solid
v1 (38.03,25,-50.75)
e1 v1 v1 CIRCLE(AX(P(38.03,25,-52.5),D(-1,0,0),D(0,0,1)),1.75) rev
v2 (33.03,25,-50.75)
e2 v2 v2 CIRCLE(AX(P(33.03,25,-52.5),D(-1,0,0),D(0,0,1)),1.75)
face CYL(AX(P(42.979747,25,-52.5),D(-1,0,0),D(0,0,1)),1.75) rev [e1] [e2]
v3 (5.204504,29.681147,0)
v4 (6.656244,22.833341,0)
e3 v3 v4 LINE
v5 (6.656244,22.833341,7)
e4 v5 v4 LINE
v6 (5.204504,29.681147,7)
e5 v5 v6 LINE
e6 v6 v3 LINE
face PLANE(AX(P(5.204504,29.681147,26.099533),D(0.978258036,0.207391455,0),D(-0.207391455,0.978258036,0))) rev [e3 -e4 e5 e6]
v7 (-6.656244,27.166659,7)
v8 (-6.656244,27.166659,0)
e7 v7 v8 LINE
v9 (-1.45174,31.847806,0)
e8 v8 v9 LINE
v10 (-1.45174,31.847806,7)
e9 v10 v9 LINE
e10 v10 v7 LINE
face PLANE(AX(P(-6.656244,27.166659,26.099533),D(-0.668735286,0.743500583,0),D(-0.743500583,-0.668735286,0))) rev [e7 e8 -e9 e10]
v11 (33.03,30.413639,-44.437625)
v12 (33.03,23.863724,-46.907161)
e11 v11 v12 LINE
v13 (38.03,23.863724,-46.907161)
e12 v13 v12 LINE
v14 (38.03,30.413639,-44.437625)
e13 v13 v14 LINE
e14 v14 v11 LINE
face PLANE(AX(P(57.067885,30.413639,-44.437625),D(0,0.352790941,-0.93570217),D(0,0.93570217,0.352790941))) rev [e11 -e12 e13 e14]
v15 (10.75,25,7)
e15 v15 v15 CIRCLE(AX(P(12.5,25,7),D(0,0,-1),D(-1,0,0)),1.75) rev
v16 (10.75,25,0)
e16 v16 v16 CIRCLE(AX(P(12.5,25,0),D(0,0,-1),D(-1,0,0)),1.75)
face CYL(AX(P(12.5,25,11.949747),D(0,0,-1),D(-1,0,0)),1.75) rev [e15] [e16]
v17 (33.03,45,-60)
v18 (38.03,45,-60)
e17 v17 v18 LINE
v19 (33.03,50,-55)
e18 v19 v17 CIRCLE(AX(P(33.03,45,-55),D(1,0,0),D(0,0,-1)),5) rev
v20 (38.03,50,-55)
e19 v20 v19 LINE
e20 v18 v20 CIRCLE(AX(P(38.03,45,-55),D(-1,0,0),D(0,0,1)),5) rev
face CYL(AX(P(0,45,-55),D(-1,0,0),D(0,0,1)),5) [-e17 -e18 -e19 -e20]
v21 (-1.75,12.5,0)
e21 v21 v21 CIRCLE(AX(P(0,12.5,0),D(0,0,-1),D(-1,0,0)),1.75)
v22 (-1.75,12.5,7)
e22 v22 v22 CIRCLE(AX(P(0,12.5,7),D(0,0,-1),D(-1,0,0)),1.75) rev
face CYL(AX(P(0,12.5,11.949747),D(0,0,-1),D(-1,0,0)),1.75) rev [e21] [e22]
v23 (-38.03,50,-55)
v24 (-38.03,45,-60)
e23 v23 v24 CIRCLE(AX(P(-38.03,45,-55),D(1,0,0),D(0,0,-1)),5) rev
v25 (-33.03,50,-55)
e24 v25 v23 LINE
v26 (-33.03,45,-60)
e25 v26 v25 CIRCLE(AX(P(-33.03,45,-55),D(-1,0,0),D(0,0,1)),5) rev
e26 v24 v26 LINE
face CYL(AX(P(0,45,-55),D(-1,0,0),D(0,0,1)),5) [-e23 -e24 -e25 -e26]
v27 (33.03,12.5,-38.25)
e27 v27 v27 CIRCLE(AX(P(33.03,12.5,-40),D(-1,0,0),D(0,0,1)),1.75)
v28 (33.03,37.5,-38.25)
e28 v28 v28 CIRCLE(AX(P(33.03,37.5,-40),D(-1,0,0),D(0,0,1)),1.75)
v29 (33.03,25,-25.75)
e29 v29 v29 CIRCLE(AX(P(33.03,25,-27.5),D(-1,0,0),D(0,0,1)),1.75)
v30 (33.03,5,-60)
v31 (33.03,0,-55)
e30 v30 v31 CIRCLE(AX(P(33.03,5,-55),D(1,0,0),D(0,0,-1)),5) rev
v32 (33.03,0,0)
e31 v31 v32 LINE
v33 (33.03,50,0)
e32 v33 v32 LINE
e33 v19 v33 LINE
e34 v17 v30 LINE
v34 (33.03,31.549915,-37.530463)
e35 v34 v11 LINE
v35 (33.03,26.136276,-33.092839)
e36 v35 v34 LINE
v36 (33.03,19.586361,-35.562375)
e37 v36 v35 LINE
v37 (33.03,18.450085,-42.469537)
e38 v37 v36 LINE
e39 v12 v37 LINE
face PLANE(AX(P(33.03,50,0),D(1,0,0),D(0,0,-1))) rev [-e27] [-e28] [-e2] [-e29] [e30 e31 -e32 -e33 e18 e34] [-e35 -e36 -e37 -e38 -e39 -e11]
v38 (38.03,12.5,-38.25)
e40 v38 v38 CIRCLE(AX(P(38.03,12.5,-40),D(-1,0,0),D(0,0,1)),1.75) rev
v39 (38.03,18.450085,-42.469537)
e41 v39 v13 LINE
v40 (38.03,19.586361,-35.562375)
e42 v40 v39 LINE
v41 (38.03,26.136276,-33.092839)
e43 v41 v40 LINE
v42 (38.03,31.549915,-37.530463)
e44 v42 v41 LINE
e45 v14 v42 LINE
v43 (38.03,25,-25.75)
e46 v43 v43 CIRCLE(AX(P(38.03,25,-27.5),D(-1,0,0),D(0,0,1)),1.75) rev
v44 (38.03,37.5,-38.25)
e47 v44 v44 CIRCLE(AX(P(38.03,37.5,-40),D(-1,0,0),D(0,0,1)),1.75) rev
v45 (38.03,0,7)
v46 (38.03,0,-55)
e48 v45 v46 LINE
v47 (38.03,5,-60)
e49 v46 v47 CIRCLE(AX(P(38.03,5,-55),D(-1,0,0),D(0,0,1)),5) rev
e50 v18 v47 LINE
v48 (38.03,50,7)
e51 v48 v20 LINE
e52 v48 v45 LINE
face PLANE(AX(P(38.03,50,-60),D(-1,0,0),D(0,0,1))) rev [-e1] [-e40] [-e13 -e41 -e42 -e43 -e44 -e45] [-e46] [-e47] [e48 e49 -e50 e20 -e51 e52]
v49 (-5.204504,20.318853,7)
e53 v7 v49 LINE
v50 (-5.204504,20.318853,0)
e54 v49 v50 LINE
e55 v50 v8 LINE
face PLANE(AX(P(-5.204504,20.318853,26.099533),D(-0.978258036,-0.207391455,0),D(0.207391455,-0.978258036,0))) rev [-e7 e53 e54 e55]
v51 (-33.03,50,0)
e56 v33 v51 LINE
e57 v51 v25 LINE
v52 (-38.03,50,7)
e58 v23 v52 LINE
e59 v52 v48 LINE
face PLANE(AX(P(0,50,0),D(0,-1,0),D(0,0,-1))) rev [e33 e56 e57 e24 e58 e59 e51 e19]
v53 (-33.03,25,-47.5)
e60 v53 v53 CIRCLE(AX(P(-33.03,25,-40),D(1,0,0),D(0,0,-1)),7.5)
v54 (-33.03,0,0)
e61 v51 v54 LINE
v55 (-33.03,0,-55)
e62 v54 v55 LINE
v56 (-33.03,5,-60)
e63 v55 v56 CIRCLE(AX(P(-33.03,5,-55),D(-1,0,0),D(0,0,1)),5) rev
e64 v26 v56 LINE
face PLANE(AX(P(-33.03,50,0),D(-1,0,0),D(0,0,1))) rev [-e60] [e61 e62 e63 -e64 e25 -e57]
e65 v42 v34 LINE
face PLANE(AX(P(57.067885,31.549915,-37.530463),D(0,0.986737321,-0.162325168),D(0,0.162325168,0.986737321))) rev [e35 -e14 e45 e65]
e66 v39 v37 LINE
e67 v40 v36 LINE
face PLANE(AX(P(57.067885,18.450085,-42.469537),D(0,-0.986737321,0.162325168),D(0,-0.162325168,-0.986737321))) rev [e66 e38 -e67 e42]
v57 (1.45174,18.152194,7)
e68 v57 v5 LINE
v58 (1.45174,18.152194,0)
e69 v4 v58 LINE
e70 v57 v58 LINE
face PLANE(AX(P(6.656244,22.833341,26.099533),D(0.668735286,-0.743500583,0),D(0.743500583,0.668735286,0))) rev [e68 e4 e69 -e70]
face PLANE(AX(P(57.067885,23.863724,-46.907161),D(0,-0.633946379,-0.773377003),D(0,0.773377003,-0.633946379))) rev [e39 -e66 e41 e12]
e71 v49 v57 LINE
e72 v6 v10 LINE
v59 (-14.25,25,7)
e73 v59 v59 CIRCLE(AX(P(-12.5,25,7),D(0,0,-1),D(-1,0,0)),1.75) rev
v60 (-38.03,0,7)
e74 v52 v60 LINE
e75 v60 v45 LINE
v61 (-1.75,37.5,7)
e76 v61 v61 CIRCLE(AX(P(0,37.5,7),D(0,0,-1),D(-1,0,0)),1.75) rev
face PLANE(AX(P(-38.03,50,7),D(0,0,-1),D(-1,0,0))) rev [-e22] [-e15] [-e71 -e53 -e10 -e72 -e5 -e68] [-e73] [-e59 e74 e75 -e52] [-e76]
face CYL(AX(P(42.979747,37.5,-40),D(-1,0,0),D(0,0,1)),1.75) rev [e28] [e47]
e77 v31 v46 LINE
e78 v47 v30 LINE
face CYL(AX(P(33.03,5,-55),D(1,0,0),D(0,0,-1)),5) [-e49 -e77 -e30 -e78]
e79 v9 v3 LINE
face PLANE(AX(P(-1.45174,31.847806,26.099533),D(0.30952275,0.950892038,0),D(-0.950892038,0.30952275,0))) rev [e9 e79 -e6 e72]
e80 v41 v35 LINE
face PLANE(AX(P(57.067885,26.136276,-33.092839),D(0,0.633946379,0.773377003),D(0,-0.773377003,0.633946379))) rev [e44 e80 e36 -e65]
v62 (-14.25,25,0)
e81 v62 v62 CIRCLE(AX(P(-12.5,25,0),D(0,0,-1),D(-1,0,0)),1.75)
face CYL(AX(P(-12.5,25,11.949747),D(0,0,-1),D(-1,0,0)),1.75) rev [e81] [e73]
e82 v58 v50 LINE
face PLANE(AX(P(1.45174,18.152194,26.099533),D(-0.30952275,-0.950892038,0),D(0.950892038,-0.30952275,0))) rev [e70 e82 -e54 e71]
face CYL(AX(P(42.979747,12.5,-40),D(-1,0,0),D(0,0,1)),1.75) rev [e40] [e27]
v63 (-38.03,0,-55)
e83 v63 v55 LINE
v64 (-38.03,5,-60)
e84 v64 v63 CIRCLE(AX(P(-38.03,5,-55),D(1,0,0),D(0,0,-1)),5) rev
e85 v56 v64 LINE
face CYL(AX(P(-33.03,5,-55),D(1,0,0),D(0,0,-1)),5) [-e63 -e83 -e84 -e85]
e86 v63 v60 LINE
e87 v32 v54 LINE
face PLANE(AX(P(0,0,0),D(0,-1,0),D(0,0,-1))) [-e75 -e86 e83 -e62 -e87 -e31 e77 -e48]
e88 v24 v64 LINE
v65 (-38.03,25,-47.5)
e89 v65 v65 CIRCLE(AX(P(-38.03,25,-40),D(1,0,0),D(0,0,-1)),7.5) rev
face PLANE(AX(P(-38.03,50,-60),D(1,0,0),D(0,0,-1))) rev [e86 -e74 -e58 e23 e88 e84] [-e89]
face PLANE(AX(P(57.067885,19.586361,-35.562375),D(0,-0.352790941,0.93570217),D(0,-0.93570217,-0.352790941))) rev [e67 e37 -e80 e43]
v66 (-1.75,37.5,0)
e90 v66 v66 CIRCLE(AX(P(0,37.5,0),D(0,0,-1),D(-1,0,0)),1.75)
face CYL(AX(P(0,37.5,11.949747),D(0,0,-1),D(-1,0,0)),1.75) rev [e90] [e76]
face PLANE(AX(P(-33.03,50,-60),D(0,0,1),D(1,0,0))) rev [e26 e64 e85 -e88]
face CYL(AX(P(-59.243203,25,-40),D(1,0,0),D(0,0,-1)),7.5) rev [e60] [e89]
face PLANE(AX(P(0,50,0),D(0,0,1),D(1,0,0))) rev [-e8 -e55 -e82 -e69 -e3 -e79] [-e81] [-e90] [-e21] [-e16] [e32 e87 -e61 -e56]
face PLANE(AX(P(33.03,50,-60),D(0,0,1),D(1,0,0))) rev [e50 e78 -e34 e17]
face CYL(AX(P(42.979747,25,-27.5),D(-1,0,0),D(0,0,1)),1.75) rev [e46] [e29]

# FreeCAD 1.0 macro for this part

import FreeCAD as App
import Part
import Sketcher

V = App.Vector
Q = App.Units.Quantity


def edges_at(feature, points):
    """Names of the edges that pass closest to the given points."""
    edges = feature.Shape.Edges
    near = lambda p: min(range(len(edges)), key=lambda i: edges[i].distToShape(Part.Vertex(*p))[0])
    return sorted({f"Edge{near(p) + 1}" for p in points})


def add_polygon(sketch, points):
    """Adds a closed chain of lines whose ends are joined by coincident constraints."""
    first, n = sketch.GeometryCount, len(points)
    for a, b in zip(points, points[1:] + points[:1]):
        sketch.addGeometry(Part.LineSegment(App.Vector(*a, 0), App.Vector(*b, 0)), False)
    for i in range(n):
        sketch.addConstraint(Sketcher.Constraint("Coincident", first + i, 2, first + (i + 1) % n, 1))

doc = App.newDocument("Part")
body = doc.addObject("PartDesign::Body", "Body")

# Sketch on XZ plane
sketch1 = body.newObject("Sketcher::SketchObject", "Sketch")
sketch1.AttachmentSupport = (doc.getObject("XZ_Plane"), [""])
sketch1.MapMode = "FlatFace"
add_polygon(sketch1, [(33, 0), (-33, 0), (-33, -60), (-38, -60), (-38, 7), (38, 7), (38, -60), (33, -60)])  # lines 0-7
sketch1.addConstraint(Sketcher.Constraint("Horizontal", 0))
sketch1.addConstraint(Sketcher.Constraint("Vertical", 1))
sketch1.addConstraint(Sketcher.Constraint("Horizontal", 2))
sketch1.addConstraint(Sketcher.Constraint("Vertical", 3))
sketch1.addConstraint(Sketcher.Constraint("Horizontal", 4))
sketch1.addConstraint(Sketcher.Constraint("Vertical", 5))
sketch1.addConstraint(Sketcher.Constraint("Horizontal", 6))
sketch1.addConstraint(Sketcher.Constraint("Vertical", 7))
sketch1.addConstraint(Sketcher.Constraint("Symmetric", 0, 2, 7, 2, -1, 1))
sketch1.addConstraint(Sketcher.Constraint("Symmetric", 2, 2, 5, 2, -2))
sketch1.addConstraint(Sketcher.Constraint("DistanceX", 2, 2, 2, 1, Q("5 mm")))
sketch1.addConstraint(Sketcher.Constraint("DistanceY", 1, 2, 1, 1, Q("60 mm")))
sketch1.addConstraint(Sketcher.Constraint("DistanceY", 3, 1, 3, 2, Q("67 mm")))
sketch1.addConstraint(Sketcher.Constraint("DistanceX", 0, 2, 0, 1, Q("66.06 mm")))
pad1 = body.newObject("PartDesign::Pad", "Pad")
pad1.Profile = sketch1
pad1.Length = 50
pad1.Reversed = True

# Sketch on YZ plane
sketch2 = body.newObject("Sketcher::SketchObject", "Sketch001")
sketch2.AttachmentSupport = (doc.getObject("YZ_Plane"), [""])
sketch2.MapMode = "FlatFace"
sketch2.AttachmentOffset = App.Placement(V(0, 0, -33.03), App.Rotation())
sketch2.addGeometry(Part.Circle(V(25, -40, 0), V(0, 0, 1), 8), False)
sketch2.addConstraint(Sketcher.Constraint("Diameter", 0, Q("15 mm")))
sketch2.addConstraint(Sketcher.Constraint("DistanceX", -1, 1, 0, 3, Q("25 mm")))
sketch2.addConstraint(Sketcher.Constraint("DistanceY", 0, 3, -1, 1, Q("40 mm")))
pocket1 = body.newObject("PartDesign::Pocket", "Pocket")
pocket1.Profile = sketch2
pocket1.Length = 5

# Sketch on YZ plane
sketch3 = body.newObject("Sketcher::SketchObject", "Sketch002")
sketch3.AttachmentSupport = (doc.getObject("YZ_Plane"), [""])
sketch3.MapMode = "FlatFace"
sketch3.AttachmentOffset = App.Placement(V(0, 0, 33.03), App.Rotation())
add_polygon(sketch3, [(24, -47), (18, -42), (20, -36), (26, -33), (32, -38), (30, -44)])  # lines 0-5
sketch3.addConstraint(Sketcher.Constraint("Parallel", 0, 3))
sketch3.addConstraint(Sketcher.Constraint("Parallel", 1, 4))
sketch3.addConstraint(Sketcher.Constraint("Parallel", 2, 5))
sketch3.addConstraint(Sketcher.Constraint("Equal", 0, 1))
sketch3.addConstraint(Sketcher.Constraint("Equal", 1, 2))
sketch3.addConstraint(Sketcher.Constraint("Equal", 2, 3))
sketch3.addConstraint(Sketcher.Constraint("Distance", 0, Q("7 mm")))
sketch3.addConstraint(Sketcher.Constraint("DistanceX", -1, 1, 1, 2, Q("19.586361 mm")))
sketch3.addConstraint(Sketcher.Constraint("DistanceY", 2, 2, -1, 1, Q("33.092839 mm")))
sketch3.addConstraint(Sketcher.Constraint("DistanceX", -1, 1, 4, 2, Q("30.413639 mm")))
sketch3.addConstraint(Sketcher.Constraint("DistanceY", 5, 2, -1, 1, Q("46.907161 mm")))
sketch3.addConstraint(Sketcher.Constraint("DistanceY", 0, 2, 1, 2, Q("6.907161 mm")))
pocket2 = body.newObject("PartDesign::Pocket", "Pocket001")
pocket2.Profile = sketch3
pocket2.Length = 5
pocket2.Reversed = True

# Sketch on XY plane
sketch4 = body.newObject("Sketcher::SketchObject", "Sketch003")
sketch4.AttachmentSupport = (doc.getObject("XY_Plane"), [""])
sketch4.MapMode = "FlatFace"
add_polygon(sketch4, [(-1, 32), (5, 30), (7, 23), (1, 18), (-5, 20), (-7, 27)])  # lines 0-5
sketch4.addConstraint(Sketcher.Constraint("Parallel", 0, 3))
sketch4.addConstraint(Sketcher.Constraint("Parallel", 1, 4))
sketch4.addConstraint(Sketcher.Constraint("Parallel", 2, 5))
sketch4.addConstraint(Sketcher.Constraint("Equal", 0, 1))
sketch4.addConstraint(Sketcher.Constraint("Equal", 1, 2))
sketch4.addConstraint(Sketcher.Constraint("Equal", 2, 3))
sketch4.addConstraint(Sketcher.Constraint("Distance", 0, Q("7 mm")))
sketch4.addConstraint(Sketcher.Constraint("DistanceY", -1, 1, 1, 2, Q("22.833341 mm")))
sketch4.addConstraint(Sketcher.Constraint("DistanceX", -1, 1, 2, 2, Q("1.45174 mm")))
sketch4.addConstraint(Sketcher.Constraint("DistanceY", -1, 1, 4, 2, Q("27.166659 mm")))
sketch4.addConstraint(Sketcher.Constraint("DistanceX", 5, 2, -1, 1, Q("1.45174 mm")))
sketch4.addConstraint(Sketcher.Constraint("DistanceX", 0, 2, 1, 2, Q("1.45174 mm")))
pocket3 = body.newObject("PartDesign::Pocket", "Pocket002")
pocket3.Profile = sketch4
pocket3.Length = 7
pocket3.Reversed = True

# Sketch on YZ plane
sketch5 = body.newObject("Sketcher::SketchObject", "Sketch004")
sketch5.AttachmentSupport = (doc.getObject("YZ_Plane"), [""])
sketch5.MapMode = "FlatFace"
sketch5.AttachmentOffset = App.Placement(V(0, 0, 33.03), App.Rotation())
sketch5.addGeometry(Part.Circle(V(25, -52.5, 0), V(0, 0, 1), 1.8), False)
sketch5.addGeometry(Part.Circle(V(37.5, -40, 0), V(0, 0, 1), 1.8), False)
sketch5.addGeometry(Part.Circle(V(12.5, -40, 0), V(0, 0, 1), 1.8), False)
sketch5.addGeometry(Part.Circle(V(25, -27.5, 0), V(0, 0, 1), 1.8), False)
sketch5.addConstraint(Sketcher.Constraint("Equal", 0, 1))
sketch5.addConstraint(Sketcher.Constraint("Equal", 1, 2))
sketch5.addConstraint(Sketcher.Constraint("Equal", 2, 3))
sketch5.addConstraint(Sketcher.Constraint("Horizontal", 1, 3, 2, 3))
sketch5.addConstraint(Sketcher.Constraint("Vertical", 0, 3, 3, 3))
sketch5.addConstraint(Sketcher.Constraint("Diameter", 0, Q("3.5 mm")))
sketch5.addConstraint(Sketcher.Constraint("DistanceX", -1, 1, 0, 3, Q("25 mm")))
sketch5.addConstraint(Sketcher.Constraint("DistanceY", 1, 3, -1, 1, Q("40 mm")))
sketch5.addConstraint(Sketcher.Constraint("DistanceX", 2, 3, 1, 3, Q("25 mm")))
sketch5.addConstraint(Sketcher.Constraint("DistanceY", 0, 3, 3, 3, Q("25 mm")))
sketch5.addConstraint(Sketcher.Constraint("DistanceY", 0, 3, -1, 1, Q("52.5 mm")))
sketch5.addConstraint(Sketcher.Constraint("DistanceX", -1, 1, 1, 3, Q("37.5 mm")))
pocket4 = body.newObject("PartDesign::Pocket", "Pocket003")
pocket4.Profile = sketch5
pocket4.Length = 5
pocket4.Reversed = True

# Sketch on XY plane
sketch6 = body.newObject("Sketcher::SketchObject", "Sketch005")
sketch6.AttachmentSupport = (doc.getObject("XY_Plane"), [""])
sketch6.MapMode = "FlatFace"
sketch6.addGeometry(Part.Circle(V(0, 37.5, 0), V(0, 0, 1), 1.8), False)
sketch6.addGeometry(Part.Circle(V(12.5, 25, 0), V(0, 0, 1), 1.8), False)
sketch6.addGeometry(Part.Circle(V(0, 12.5, 0), V(0, 0, 1), 1.8), False)
sketch6.addGeometry(Part.Circle(V(-12.5, 25, 0), V(0, 0, 1), 1.8), False)
sketch6.addConstraint(Sketcher.Constraint("Equal", 0, 1))
sketch6.addConstraint(Sketcher.Constraint("Equal", 1, 2))
sketch6.addConstraint(Sketcher.Constraint("Equal", 2, 3))
sketch6.addConstraint(Sketcher.Constraint("Symmetric", 1, 3, 3, 3, -2))
sketch6.addConstraint(Sketcher.Constraint("PointOnObject", 0, 3, -2))
sketch6.addConstraint(Sketcher.Constraint("PointOnObject", 2, 3, -2))
sketch6.addConstraint(Sketcher.Constraint("Diameter", 0, Q("3.5 mm")))
sketch6.addConstraint(Sketcher.Constraint("DistanceY", -1, 1, 1, 3, Q("25 mm")))
sketch6.addConstraint(Sketcher.Constraint("DistanceY", 2, 3, 0, 3, Q("25 mm")))
sketch6.addConstraint(Sketcher.Constraint("DistanceX", 3, 3, 1, 3, Q("25 mm")))
sketch6.addConstraint(Sketcher.Constraint("DistanceY", -1, 1, 0, 3, Q("37.5 mm")))
pocket5 = body.newObject("PartDesign::Pocket", "Pocket004")
pocket5.Profile = sketch6
pocket5.Length = 7
pocket5.Reversed = True
doc.recompute()

fillet = body.newObject("PartDesign::Fillet", "Fillet")
fillet.Base = (pocket5, edges_at(pocket5, [
    (35.53, 0, -60),
    (-35.53, 0, -60),
    (-35.53, 50, -60),
    (35.53, 50, -60),
]))
fillet.Radius = 5

doc.recompute()
